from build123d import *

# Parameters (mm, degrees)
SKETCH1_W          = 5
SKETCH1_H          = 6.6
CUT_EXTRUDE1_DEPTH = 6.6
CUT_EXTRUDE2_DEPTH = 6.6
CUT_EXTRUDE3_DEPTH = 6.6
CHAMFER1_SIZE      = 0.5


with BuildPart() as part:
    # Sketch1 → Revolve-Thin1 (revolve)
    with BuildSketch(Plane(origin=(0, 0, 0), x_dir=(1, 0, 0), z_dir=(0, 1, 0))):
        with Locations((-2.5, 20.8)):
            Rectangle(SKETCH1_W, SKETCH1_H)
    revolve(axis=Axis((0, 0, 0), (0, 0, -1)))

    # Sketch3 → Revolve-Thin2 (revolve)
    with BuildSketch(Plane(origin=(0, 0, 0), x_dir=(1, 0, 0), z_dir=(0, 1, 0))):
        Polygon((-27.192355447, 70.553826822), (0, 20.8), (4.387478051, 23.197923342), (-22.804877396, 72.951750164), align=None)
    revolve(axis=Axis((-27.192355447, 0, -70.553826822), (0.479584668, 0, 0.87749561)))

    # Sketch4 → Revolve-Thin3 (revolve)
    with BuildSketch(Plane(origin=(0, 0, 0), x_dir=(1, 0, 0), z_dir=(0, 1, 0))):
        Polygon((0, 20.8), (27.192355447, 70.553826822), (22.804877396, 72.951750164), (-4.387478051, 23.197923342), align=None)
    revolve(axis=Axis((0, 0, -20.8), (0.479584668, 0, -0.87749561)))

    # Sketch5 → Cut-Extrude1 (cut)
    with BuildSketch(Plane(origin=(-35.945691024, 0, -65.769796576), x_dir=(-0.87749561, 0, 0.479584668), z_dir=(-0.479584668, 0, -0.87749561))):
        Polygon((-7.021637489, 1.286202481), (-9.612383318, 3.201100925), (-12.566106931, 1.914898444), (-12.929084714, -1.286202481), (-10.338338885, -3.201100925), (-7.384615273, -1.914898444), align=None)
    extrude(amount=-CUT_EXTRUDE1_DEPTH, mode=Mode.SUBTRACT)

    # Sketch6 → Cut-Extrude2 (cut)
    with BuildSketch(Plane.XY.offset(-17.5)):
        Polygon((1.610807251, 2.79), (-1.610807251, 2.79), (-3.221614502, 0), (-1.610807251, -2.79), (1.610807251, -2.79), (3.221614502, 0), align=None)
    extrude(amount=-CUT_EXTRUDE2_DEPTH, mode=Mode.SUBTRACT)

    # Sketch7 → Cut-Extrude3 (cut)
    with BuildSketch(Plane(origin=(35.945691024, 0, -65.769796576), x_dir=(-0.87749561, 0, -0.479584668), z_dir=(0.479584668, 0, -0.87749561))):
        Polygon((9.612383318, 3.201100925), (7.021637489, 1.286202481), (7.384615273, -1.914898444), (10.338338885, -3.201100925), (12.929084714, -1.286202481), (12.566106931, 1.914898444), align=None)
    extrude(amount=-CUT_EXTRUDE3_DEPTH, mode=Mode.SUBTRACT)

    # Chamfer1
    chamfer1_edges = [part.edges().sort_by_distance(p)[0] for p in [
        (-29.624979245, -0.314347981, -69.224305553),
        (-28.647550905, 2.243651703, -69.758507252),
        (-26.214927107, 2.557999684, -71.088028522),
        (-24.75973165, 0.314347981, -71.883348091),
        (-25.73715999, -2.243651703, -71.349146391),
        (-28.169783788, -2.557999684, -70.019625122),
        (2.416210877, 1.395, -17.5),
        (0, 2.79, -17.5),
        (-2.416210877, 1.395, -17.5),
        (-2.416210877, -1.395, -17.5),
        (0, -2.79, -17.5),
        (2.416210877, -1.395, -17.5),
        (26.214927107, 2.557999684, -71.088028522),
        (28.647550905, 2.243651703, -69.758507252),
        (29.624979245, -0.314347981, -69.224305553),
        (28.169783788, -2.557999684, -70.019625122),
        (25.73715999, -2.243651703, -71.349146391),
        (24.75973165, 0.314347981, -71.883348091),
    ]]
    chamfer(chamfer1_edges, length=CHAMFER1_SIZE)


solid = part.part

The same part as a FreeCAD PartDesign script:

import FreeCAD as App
import Part
import Sketcher
from FreeCAD import Vector
Q = App.Units.Quantity


def edges_at(feature, points):
    """Names of the edges that pass closest to the given points."""
    edges = feature.Shape.Edges
    near = lambda p: min(range(len(edges)), key=lambda i: edges[i].distToShape(Part.Vertex(*p))[0])
    return sorted({f"Edge{near(p) + 1}" for p in points})


def add_polygon(sketch, points):
    """Adds a closed chain of lines whose ends are joined by coincident constraints."""
    first, n = sketch.GeometryCount, len(points)
    for a, b in zip(points, points[1:] + points[:1]):
        sketch.addGeometry(Part.LineSegment(App.Vector(*a, 0), App.Vector(*b, 0)), False)
    for i in range(n):
        sketch.addConstraint(Sketcher.Constraint("Coincident", first + i, 2, first + (i + 1) % n, 1))

doc = App.newDocument("Part")
params = doc.addObject("Spreadsheet::Sheet", "Params")
for row, (alias, value) in enumerate([
    ("sketch1_width", "5 mm"),
    ("sketch1_height", "6.6 mm"),
    ("revolution_angle", "360 deg"),
    ("sketch2_length", "5 mm"),
    ("revolution2_angle", "360 deg"),
    ("sketch3_length", "5 mm"),
    ("revolution3_angle", "360 deg"),
    ("pocket1_length", "6.6 mm"),
    ("pocket2_length", "6.6 mm"),
    ("pocket3_length", "6.6 mm"),
    ("chamfer_size", "0.5 mm"),
], start=1):
    params.set(f"A{row}", alias)
    params.set(f"B{row}", "=" + value)
    params.setAlias(f"B{row}", alias)

body = doc.addObject("PartDesign::Body", "Body")

# Sketch on XZ plane
sketch1 = body.newObject("Sketcher::SketchObject", "Sketch")
sketch1.AttachmentSupport = (doc.getObject("XZ_Plane"), [""])
sketch1.MapMode = "FlatFace"
add_polygon(sketch1, [(-5, -24), (-5, -18), (0, -18), (0, -24)])  # lines 0-3
sketch1.addConstraint([
    Sketcher.Constraint("Vertical", 0),
    Sketcher.Constraint("Horizontal", 1),
    Sketcher.Constraint("Vertical", 2),
    Sketcher.Constraint("Horizontal", 3),
    Sketcher.Constraint("PointOnObject", 1, 2, -2),
    Sketcher.Constraint("DistanceX", 1, 1, 1, 2, Q("5 mm")),
    Sketcher.Constraint("DistanceY", 0, 1, 0, 2, Q("6.6 mm")),
    Sketcher.Constraint("DistanceY", 0, 2, -1, 1, Q("17.5 mm")),
])
sketch1.setExpression("Constraints[9]", "Params.sketch1_width")
sketch1.setExpression("Constraints[10]", "Params.sketch1_height")
revolution = body.newObject("PartDesign::Revolution", "Revolution")
revolution.Profile = sketch1
revolution.ReferenceAxis = (sketch1, ["V_Axis"])
revolution.setExpression("Angle", "Params.revolution_angle")

# Sketch on XZ plane
sketch2 = body.newObject("Sketcher::SketchObject", "Sketch001")
sketch2.AttachmentSupport = (doc.getObject("XZ_Plane"), [""])
sketch2.MapMode = "FlatFace"
add_polygon(sketch2, [(-27, -71), (0, -21), (4, -23), (-23, -73)])  # lines 0-3
sketch2.addGeometry(Part.LineSegment(Vector(-27, -71, 0), Vector(0, -21, 0)), True)  # axis
sketch2.addConstraint([
    Sketcher.Constraint("Coincident", 4, 1, 3, 2),
    Sketcher.Constraint("Coincident", 4, 2, 0, 2),
    Sketcher.Constraint("PointOnObject", 0, 2, -2),
    Sketcher.Constraint("Perpendicular", 0, 1),
    Sketcher.Constraint("Perpendicular", 1, 2),
    Sketcher.Constraint("Perpendicular", 2, 3),
    Sketcher.Constraint("Distance", 1, Q("5 mm")),
    Sketcher.Constraint("DistanceY", 0, 2, -1, 1, Q("20.8 mm")),
    Sketcher.Constraint("Distance", 0, Q("56.699801 mm")),
    Sketcher.Constraint("DistanceX", -1, 1, 1, 2, Q("4.387478 mm")),
])
sketch2.setExpression("Constraints[10]", "Params.sketch2_length")
revolution2 = body.newObject("PartDesign::Revolution", "Revolution001")
revolution2.Profile = sketch2
revolution2.ReferenceAxis = (sketch2, ["Axis0"])
revolution2.setExpression("Angle", "Params.revolution2_angle")

# Sketch on XZ plane
sketch3 = body.newObject("Sketcher::SketchObject", "Sketch002")
sketch3.AttachmentSupport = (doc.getObject("XZ_Plane"), [""])
sketch3.MapMode = "FlatFace"
add_polygon(sketch3, [(0, -21), (27, -71), (23, -73), (-4, -23)])  # lines 0-3
sketch3.addGeometry(Part.LineSegment(Vector(0, -21, 0), Vector(27, -71, 0)), True)  # axis
sketch3.addConstraint([
    Sketcher.Constraint("Coincident", 4, 1, 3, 2),
    Sketcher.Constraint("Coincident", 4, 2, 0, 2),
    Sketcher.Constraint("PointOnObject", 3, 2, -2),
    Sketcher.Constraint("Perpendicular", 0, 1),
    Sketcher.Constraint("Perpendicular", 1, 2),
    Sketcher.Constraint("Perpendicular", 2, 3),
    Sketcher.Constraint("Distance", 1, Q("5 mm")),
    Sketcher.Constraint("DistanceY", 3, 2, -1, 1, Q("20.8 mm")),
    Sketcher.Constraint("Distance", 0, Q("56.699801 mm")),
    Sketcher.Constraint("DistanceY", 1, 2, -1, 1, Q("72.95175 mm")),
])
sketch3.setExpression("Constraints[10]", "Params.sketch3_length")
revolution3 = body.newObject("PartDesign::Revolution", "Revolution002")
revolution3.Profile = sketch3
revolution3.ReferenceAxis = (sketch3, ["Axis0"])
revolution3.setExpression("Angle", "Params.revolution3_angle")

# Sketch on an angled plane
sketch4 = body.newObject("Sketcher::SketchObject", "Sketch003")
sketch4.Placement = App.Placement(Vector(-35.945691, 0, -65.769797), App.Rotation(Vector(-0.87749561, 0, 0.479584668), Vector(0, 0.999999999, 0), Vector(-0.479584668, 0, -0.87749561), "ZXY"))
add_polygon(sketch4, [(-7, 1.3), (-9.6, 3.2), (-12.6, 1.9), (-12.9, -1.3), (-10.3, -3.2), (-7.4, -1.9)])  # lines 0-5
sketch4.addConstraint([
    Sketcher.Constraint("Parallel", 0, 3),
    Sketcher.Constraint("Parallel", 1, 4),
    Sketcher.Constraint("Parallel", 2, 5),
    Sketcher.Constraint("Equal", 0, 1),
    Sketcher.Constraint("Equal", 1, 2),
    Sketcher.Constraint("Equal", 2, 3),
    Sketcher.Constraint("DistanceY", 3, 2, 1, 2, Q("5.115999 mm")),
    Sketcher.Constraint("DistanceY", -1, 1, 0, 2, Q("3.201101 mm")),
    Sketcher.Constraint("DistanceY", -1, 1, 1, 2, Q("1.914898 mm")),
    Sketcher.Constraint("DistanceY", 2, 2, 1, 2, Q("3.201101 mm")),
    Sketcher.Constraint("DistanceX", 2, 2, 0, 2, Q("3.316701 mm")),
    Sketcher.Constraint("DistanceX", 3, 2, -1, 1, Q("10.338339 mm")),
])
pocket1 = body.newObject("PartDesign::Pocket", "Pocket")
pocket1.Profile = sketch4
pocket1.setExpression("Length", "Params.pocket1_length")

# Sketch on XY plane
sketch5 = body.newObject("Sketcher::SketchObject", "Sketch004")
sketch5.AttachmentSupport = (doc.getObject("XY_Plane"), [""])
sketch5.MapMode = "FlatFace"
sketch5.AttachmentOffset = App.Placement(Vector(0, 0, -17.5), App.Rotation())
add_polygon(sketch5, [(1.6, 2.8), (-1.6, 2.8), (-3.2, 0), (-1.6, -2.8), (1.6, -2.8), (3.2, 0)])  # lines 0-5
sketch5.addConstraint([
    Sketcher.Constraint("Horizontal", 0),
    Sketcher.Constraint("Horizontal", 3),
    Sketcher.Constraint("Symmetric", 0, 2, 3, 2, -1, 1),
    Sketcher.Constraint("Symmetric", 1, 2, 4, 2, -1, 1),
    Sketcher.Constraint("PointOnObject", 1, 2, -1),
    Sketcher.Constraint("Parallel", 2, 5),
    Sketcher.Constraint("Vertical", 0, 2, 2, 2),
    Sketcher.Constraint("Angle", 1, Q("-120 deg")),
    Sketcher.Constraint("DistanceY", -1, 1, 0, 2, Q("2.79 mm")),
    Sketcher.Constraint("DistanceX", 0, 2, 0, 1, Q("3.221615 mm")),
])
pocket2 = body.newObject("PartDesign::Pocket", "Pocket001")
pocket2.Profile = sketch5
pocket2.setExpression("Length", "Params.pocket2_length")

# Sketch on an angled plane
sketch6 = body.newObject("Sketcher::SketchObject", "Sketch005")
sketch6.Placement = App.Placement(Vector(35.945691, 0, -65.769797), App.Rotation(Vector(-0.87749561, 0, -0.479584668), Vector(0, 0.999999999, 0), Vector(0.479584668, 0, -0.87749561), "ZXY"))
add_polygon(sketch6, [(9.6, 3.2), (7, 1.3), (7.4, -1.9), (10.3, -3.2), (12.9, -1.3), (12.6, 1.9)])  # lines 0-5
sketch6.addConstraint([
    Sketcher.Constraint("Parallel", 0, 3),
    Sketcher.Constraint("Parallel", 1, 4),
    Sketcher.Constraint("Parallel", 2, 5),
    Sketcher.Constraint("Equal", 0, 1),
    Sketcher.Constraint("Equal", 1, 2),
    Sketcher.Constraint("Equal", 2, 3),
    Sketcher.Constraint("DistanceY", 2, 2, 4, 2, Q("5.115999 mm")),
    Sketcher.Constraint("DistanceY", 1, 2, -1, 1, Q("1.914898 mm")),
    Sketcher.Constraint("DistanceY", 2, 2, -1, 1, Q("3.201101 mm")),
    Sketcher.Constraint("DistanceY", 1, 2, 0, 2, Q("3.201101 mm")),
    Sketcher.Constraint("DistanceX", 0, 2, 2, 2, Q("3.316701 mm")),
    Sketcher.Constraint("DistanceX", -1, 1, 2, 2, Q("10.338339 mm")),
])
pocket3 = body.newObject("PartDesign::Pocket", "Pocket002")
pocket3.Profile = sketch6
pocket3.setExpression("Length", "Params.pocket3_length")
doc.recompute()

chamfer = body.newObject("PartDesign::Chamfer", "Chamfer")
chamfer.Base = (pocket3, edges_at(pocket3, [
    (-29.625, -0.314, -69.224),
    (-28.648, 2.244, -69.759),
    (-26.215, 2.558, -71.088),
    (-24.76, 0.314, -71.883),
    (-25.737, -2.244, -71.349),
    (-28.17, -2.558, -70.02),
    (2.416, 1.395, -17.5),
    (0, 2.79, -17.5),
    (-2.416, 1.395, -17.5),
    (-2.416, -1.395, -17.5),
    (0, -2.79, -17.5),
    (2.416, -1.395, -17.5),
    (26.215, 2.558, -71.088),
    (28.648, 2.244, -69.759),
    (29.625, -0.314, -69.224),
    (28.17, -2.558, -70.02),
    (25.737, -2.244, -71.349),
    (24.76, 0.314, -71.883),
]))
chamfer.setExpression("Size", "Params.chamfer_size")

doc.recompute()
